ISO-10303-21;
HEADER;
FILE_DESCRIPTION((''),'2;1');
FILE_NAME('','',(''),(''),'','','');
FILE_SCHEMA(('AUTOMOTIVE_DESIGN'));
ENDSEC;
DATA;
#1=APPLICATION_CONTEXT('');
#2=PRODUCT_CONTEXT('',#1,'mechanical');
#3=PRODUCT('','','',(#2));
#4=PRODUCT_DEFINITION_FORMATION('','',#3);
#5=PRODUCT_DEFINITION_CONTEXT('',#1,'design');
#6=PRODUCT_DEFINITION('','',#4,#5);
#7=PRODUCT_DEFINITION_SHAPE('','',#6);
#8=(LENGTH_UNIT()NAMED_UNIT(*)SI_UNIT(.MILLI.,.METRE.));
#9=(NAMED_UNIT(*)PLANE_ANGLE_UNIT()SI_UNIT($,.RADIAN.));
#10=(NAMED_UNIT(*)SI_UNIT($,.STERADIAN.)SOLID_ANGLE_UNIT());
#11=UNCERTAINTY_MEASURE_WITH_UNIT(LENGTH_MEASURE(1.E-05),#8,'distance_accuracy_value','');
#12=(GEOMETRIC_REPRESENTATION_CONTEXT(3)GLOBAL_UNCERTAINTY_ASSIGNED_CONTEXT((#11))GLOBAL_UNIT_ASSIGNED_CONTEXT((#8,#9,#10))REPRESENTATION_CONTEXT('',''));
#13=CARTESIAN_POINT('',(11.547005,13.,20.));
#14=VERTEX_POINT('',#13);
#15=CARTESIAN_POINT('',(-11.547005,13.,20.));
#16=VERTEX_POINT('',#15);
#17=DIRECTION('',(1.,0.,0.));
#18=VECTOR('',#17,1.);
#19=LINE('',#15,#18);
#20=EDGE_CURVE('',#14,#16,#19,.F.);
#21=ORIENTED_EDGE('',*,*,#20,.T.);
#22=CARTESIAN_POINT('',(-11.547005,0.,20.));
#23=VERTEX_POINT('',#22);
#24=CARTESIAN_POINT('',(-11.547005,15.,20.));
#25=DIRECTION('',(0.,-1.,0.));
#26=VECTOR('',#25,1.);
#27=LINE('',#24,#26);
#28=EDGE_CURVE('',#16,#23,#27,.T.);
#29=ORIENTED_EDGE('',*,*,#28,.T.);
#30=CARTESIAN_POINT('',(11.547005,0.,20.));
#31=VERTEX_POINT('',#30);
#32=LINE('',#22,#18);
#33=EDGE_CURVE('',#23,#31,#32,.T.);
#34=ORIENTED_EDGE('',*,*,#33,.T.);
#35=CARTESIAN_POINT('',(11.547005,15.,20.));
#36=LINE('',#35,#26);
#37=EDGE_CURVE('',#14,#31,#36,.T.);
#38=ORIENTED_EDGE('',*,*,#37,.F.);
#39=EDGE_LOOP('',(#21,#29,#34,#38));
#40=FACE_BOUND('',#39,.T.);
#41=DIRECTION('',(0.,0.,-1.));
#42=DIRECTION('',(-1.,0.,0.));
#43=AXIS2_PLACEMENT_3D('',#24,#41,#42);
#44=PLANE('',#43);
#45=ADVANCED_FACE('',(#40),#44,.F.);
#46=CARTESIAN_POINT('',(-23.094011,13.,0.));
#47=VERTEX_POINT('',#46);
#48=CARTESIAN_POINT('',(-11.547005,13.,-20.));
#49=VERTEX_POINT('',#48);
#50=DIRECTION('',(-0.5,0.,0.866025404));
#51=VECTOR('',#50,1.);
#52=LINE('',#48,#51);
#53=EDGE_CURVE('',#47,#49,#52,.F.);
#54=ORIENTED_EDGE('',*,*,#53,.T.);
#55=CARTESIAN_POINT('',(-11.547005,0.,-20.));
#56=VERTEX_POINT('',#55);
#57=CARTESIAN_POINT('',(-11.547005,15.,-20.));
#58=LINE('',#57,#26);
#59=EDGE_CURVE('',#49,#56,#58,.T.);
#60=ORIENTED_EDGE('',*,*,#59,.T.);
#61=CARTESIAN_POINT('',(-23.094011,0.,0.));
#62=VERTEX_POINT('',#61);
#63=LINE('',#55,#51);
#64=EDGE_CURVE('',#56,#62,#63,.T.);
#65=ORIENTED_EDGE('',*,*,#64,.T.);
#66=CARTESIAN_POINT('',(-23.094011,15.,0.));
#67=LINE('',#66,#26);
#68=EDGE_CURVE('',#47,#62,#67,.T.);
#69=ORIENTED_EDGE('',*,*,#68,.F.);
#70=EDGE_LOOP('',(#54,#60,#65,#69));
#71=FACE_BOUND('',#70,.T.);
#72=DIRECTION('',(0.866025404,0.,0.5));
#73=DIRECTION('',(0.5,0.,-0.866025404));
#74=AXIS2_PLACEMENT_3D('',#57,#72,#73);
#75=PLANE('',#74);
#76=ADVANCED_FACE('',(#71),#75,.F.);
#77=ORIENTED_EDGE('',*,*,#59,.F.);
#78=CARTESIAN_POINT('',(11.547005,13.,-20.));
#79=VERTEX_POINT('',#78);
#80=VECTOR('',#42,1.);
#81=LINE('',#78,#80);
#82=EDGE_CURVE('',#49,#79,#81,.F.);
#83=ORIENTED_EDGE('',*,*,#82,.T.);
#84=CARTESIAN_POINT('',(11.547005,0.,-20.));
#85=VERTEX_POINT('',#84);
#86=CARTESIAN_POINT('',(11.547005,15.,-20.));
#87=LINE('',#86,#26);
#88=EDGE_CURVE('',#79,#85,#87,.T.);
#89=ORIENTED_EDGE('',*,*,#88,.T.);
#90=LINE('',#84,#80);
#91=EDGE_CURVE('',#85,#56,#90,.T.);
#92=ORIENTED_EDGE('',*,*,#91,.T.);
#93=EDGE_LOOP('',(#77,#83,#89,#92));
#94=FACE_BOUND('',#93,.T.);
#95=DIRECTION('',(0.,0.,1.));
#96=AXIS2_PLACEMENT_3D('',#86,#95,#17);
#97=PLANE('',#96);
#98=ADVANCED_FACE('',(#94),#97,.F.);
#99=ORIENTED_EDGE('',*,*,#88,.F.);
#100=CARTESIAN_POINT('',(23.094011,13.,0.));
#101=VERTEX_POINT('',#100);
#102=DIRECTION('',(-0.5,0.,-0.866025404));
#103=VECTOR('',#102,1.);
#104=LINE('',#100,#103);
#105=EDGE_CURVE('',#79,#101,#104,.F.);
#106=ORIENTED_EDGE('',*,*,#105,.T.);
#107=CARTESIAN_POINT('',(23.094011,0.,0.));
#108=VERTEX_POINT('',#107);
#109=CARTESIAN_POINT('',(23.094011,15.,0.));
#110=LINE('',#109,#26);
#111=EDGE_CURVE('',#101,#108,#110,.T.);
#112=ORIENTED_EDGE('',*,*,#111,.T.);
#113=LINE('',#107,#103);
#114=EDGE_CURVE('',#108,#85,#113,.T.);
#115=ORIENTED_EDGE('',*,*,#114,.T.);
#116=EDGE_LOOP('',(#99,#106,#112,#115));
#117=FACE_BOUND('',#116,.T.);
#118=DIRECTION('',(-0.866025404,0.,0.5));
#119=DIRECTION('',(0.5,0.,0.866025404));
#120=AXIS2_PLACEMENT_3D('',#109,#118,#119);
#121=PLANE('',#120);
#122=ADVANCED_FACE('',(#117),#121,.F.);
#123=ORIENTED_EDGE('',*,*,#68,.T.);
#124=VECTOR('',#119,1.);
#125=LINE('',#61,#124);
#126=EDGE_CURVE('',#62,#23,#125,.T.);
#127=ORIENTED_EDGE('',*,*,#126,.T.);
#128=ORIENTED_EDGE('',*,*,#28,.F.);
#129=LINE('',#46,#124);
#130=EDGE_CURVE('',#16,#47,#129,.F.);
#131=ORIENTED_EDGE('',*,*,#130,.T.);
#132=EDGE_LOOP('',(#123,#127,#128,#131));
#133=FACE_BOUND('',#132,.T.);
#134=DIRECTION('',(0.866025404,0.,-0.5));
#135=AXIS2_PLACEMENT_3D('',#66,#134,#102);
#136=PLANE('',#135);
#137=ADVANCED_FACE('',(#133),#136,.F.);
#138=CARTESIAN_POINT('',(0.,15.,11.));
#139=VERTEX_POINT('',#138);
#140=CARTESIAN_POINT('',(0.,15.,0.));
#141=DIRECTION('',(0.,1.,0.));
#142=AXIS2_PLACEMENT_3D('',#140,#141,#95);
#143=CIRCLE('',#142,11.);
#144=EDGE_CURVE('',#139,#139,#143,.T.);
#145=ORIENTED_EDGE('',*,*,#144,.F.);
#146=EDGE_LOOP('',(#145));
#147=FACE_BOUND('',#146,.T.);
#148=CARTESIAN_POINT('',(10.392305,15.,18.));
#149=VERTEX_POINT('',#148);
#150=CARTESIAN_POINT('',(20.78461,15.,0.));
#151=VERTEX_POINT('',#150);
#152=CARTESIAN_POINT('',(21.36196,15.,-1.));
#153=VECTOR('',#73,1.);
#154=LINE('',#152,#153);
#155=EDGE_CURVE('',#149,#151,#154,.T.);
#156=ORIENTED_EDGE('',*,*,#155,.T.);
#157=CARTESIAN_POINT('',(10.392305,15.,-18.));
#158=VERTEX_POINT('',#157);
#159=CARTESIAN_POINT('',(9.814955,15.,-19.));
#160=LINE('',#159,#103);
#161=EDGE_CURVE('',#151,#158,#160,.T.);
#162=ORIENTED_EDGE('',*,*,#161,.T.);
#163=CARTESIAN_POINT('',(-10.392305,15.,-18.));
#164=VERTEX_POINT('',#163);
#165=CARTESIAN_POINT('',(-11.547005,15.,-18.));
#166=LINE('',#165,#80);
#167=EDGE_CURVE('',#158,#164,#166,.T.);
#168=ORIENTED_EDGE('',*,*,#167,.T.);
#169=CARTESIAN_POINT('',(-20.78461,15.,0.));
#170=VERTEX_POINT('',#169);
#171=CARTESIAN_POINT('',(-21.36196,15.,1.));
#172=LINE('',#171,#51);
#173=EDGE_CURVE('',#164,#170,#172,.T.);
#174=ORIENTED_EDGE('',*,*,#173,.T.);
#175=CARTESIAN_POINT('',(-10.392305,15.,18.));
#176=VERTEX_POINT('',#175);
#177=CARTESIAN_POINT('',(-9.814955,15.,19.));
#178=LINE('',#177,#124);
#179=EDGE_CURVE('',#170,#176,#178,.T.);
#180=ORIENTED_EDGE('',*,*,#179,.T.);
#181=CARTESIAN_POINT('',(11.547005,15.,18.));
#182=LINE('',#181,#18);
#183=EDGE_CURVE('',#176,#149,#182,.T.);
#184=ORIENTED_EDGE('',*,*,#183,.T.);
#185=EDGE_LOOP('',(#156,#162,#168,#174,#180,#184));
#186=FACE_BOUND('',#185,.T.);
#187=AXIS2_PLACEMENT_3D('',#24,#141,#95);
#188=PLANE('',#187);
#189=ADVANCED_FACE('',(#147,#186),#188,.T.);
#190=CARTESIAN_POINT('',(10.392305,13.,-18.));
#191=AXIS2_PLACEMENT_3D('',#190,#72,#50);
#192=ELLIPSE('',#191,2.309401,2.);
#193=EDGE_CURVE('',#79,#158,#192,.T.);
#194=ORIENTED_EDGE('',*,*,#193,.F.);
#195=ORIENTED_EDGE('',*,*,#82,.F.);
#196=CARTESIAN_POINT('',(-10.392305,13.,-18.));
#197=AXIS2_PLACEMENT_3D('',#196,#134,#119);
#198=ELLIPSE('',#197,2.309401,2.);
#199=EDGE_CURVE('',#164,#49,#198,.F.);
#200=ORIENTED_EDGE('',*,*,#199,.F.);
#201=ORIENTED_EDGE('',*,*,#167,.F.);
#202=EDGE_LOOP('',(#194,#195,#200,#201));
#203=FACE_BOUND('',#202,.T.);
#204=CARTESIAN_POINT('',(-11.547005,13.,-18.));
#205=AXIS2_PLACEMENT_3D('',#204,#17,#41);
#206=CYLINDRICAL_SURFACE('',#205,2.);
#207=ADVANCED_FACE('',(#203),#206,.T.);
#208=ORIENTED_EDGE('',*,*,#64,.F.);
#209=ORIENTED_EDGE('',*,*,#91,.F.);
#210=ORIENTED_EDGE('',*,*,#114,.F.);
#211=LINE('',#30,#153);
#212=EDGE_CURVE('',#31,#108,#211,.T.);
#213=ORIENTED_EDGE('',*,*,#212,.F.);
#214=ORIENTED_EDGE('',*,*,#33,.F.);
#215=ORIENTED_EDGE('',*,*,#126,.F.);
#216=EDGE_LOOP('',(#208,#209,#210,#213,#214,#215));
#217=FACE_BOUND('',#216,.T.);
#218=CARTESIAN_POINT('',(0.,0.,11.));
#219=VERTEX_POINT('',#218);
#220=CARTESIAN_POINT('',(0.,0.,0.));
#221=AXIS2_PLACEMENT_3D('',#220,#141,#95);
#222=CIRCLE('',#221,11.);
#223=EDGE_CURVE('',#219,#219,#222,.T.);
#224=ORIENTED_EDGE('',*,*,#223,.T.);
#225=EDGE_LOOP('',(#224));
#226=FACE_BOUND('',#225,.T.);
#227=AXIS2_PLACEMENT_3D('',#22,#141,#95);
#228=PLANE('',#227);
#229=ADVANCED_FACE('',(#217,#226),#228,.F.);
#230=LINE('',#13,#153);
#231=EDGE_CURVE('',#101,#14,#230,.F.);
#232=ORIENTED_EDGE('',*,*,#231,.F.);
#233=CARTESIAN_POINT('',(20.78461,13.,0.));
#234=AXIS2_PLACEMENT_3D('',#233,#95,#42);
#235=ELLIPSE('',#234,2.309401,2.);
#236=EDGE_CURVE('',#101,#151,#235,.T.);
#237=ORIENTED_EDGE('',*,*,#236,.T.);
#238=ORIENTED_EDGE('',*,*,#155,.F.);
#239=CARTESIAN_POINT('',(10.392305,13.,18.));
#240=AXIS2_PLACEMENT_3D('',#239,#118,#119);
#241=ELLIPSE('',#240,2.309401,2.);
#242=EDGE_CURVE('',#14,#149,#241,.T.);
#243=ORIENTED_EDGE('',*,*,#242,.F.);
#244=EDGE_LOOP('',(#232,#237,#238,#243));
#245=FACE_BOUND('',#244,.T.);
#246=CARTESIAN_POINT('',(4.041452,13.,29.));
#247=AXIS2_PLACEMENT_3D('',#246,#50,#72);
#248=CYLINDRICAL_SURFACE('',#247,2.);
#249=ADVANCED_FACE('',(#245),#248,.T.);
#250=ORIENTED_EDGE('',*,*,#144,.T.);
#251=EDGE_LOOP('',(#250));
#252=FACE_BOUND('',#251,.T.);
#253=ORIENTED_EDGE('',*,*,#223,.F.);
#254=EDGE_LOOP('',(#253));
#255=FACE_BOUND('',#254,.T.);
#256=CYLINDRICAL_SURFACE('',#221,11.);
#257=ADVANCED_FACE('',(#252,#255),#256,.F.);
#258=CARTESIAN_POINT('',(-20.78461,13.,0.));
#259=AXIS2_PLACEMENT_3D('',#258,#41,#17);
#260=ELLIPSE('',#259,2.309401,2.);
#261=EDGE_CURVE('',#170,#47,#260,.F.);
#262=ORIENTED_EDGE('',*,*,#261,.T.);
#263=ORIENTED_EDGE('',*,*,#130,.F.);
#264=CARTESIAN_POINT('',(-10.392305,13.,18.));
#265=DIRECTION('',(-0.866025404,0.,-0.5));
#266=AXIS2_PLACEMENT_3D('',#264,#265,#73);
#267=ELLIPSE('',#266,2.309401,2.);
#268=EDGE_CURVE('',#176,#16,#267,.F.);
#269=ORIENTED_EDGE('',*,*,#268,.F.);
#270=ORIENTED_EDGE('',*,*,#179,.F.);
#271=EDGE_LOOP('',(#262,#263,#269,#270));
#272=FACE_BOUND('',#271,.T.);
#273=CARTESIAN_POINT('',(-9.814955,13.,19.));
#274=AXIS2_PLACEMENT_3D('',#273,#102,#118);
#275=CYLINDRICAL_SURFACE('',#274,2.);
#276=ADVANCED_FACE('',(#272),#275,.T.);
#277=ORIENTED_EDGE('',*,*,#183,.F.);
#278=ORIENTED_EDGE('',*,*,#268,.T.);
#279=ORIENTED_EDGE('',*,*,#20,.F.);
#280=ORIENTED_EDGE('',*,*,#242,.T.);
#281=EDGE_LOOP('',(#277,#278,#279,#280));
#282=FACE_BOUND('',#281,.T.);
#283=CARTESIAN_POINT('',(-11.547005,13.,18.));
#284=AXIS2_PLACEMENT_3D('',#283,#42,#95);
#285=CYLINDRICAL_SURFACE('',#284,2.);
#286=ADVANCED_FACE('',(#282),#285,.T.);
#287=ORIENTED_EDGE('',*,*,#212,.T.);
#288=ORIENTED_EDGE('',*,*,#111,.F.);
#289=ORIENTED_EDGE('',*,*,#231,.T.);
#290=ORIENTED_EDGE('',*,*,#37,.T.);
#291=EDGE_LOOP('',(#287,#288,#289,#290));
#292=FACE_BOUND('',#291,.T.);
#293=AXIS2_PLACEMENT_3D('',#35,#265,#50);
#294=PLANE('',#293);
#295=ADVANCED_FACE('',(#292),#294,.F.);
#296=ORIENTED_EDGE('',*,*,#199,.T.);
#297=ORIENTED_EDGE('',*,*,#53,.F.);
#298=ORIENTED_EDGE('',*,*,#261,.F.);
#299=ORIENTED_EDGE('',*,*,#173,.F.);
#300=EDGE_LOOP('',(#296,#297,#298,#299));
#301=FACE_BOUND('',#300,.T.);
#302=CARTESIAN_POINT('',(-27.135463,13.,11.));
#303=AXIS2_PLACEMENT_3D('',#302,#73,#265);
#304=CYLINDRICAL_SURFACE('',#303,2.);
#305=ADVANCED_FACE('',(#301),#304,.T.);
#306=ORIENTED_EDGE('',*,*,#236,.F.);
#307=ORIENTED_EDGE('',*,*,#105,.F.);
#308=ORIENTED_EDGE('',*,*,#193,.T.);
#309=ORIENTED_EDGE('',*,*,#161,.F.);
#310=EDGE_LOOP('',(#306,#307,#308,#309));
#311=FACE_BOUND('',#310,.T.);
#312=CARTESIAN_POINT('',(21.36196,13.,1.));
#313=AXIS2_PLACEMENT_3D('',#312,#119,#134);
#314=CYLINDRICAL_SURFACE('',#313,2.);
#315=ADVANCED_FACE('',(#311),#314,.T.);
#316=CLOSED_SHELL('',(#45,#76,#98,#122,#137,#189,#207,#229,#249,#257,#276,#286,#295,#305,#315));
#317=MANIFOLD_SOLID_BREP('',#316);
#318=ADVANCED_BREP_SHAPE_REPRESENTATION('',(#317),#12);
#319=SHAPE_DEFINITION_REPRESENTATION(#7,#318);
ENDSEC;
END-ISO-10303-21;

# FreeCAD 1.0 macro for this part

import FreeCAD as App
import Part
import Sketcher
Q = App.Units.Quantity


def edges_at(feature, points):
    """Names of the edges that pass closest to the given points."""
    edges = feature.Shape.Edges
    near = lambda p: min(range(len(edges)), key=lambda i: edges[i].distToShape(Part.Vertex(*p))[0])
    return sorted({f"Edge{near(p) + 1}" for p in points})


def add_polygon(sketch, points):
    """Adds a closed chain of lines whose ends are joined by coincident constraints."""
    first, n = sketch.GeometryCount, len(points)
    for a, b in zip(points, points[1:] + points[:1]):
        sketch.addGeometry(Part.LineSegment(App.Vector(*a, 0), App.Vector(*b, 0)), False)
    for i in range(n):
        sketch.addConstraint(Sketcher.Constraint("Coincident", first + i, 2, first + (i + 1) % n, 1))

doc = App.newDocument("Part")
body = doc.addObject("PartDesign::Body", "Body")

sketch1 = body.newObject("Sketcher::SketchObject", "Sketch")
sketch1.AttachmentSupport = (doc.getObject("XZ_Plane"), [""])
sketch1.MapMode = "FlatFace"
add_polygon(sketch1, [(-12, 20), (12, 20), (23, 0), (12, -20), (-12, -20), (-23, 0)])
sketch1.addConstraint([
    Sketcher.Constraint("Horizontal", 0),
    Sketcher.Constraint("Horizontal", 3),
    Sketcher.Constraint("Symmetric", 0, 2, 3, 2, -1, 1),
    Sketcher.Constraint("Symmetric", 1, 2, 4, 2, -1, 1),
    Sketcher.Constraint("PointOnObject", 1, 2, -1),
    Sketcher.Constraint("Parallel", 2, 5),
    Sketcher.Constraint("Vertical", 0, 2, 2, 2),
    Sketcher.Constraint("Angle", 1, Q("-60 deg")),
    Sketcher.Constraint("DistanceY", -1, 1, 0, 2, 20.0),
    Sketcher.Constraint("DistanceX", 0, 1, 0, 2, 23.094011),
])
pad1 = body.newObject("PartDesign::Pad", "Pad")
pad1.Profile = sketch1
pad1.Length = 15
pad1.Reversed = True

sketch2 = body.newObject("Sketcher::SketchObject", "Sketch001")
sketch2.AttachmentSupport = (doc.getObject("XZ_Plane"), [""])
sketch2.MapMode = "FlatFace"
sketch2.AttachmentOffset = App.Placement(App.Vector(0, 0, -15), App.Rotation())
sketch2.addGeometry(Part.Circle(App.Vector(0, 0, 0), App.Vector(0, 0, 1), 11), False)
sketch2.addConstraint([
    Sketcher.Constraint("Coincident", 0, 3, -1, 1),
    Sketcher.Constraint("Diameter", 0, 22.0),
])
pocket1 = body.newObject("PartDesign::Pocket", "Pocket")
pocket1.Profile = sketch2
pocket1.Type = "ThroughAll"
pocket1.Reversed = True
doc.recompute()

fillet = body.newObject("PartDesign::Fillet", "Fillet")
fillet.Base = (pocket1, edges_at(pocket1, [
    (17.321, 15, 10),
    (17.321, 15, -10),
    (0, 15, -20),
    (-17.321, 15, -10),
    (-17.321, 15, 10),
    (0, 15, 20),
]))
fillet.Radius = 2

doc.recompute()
